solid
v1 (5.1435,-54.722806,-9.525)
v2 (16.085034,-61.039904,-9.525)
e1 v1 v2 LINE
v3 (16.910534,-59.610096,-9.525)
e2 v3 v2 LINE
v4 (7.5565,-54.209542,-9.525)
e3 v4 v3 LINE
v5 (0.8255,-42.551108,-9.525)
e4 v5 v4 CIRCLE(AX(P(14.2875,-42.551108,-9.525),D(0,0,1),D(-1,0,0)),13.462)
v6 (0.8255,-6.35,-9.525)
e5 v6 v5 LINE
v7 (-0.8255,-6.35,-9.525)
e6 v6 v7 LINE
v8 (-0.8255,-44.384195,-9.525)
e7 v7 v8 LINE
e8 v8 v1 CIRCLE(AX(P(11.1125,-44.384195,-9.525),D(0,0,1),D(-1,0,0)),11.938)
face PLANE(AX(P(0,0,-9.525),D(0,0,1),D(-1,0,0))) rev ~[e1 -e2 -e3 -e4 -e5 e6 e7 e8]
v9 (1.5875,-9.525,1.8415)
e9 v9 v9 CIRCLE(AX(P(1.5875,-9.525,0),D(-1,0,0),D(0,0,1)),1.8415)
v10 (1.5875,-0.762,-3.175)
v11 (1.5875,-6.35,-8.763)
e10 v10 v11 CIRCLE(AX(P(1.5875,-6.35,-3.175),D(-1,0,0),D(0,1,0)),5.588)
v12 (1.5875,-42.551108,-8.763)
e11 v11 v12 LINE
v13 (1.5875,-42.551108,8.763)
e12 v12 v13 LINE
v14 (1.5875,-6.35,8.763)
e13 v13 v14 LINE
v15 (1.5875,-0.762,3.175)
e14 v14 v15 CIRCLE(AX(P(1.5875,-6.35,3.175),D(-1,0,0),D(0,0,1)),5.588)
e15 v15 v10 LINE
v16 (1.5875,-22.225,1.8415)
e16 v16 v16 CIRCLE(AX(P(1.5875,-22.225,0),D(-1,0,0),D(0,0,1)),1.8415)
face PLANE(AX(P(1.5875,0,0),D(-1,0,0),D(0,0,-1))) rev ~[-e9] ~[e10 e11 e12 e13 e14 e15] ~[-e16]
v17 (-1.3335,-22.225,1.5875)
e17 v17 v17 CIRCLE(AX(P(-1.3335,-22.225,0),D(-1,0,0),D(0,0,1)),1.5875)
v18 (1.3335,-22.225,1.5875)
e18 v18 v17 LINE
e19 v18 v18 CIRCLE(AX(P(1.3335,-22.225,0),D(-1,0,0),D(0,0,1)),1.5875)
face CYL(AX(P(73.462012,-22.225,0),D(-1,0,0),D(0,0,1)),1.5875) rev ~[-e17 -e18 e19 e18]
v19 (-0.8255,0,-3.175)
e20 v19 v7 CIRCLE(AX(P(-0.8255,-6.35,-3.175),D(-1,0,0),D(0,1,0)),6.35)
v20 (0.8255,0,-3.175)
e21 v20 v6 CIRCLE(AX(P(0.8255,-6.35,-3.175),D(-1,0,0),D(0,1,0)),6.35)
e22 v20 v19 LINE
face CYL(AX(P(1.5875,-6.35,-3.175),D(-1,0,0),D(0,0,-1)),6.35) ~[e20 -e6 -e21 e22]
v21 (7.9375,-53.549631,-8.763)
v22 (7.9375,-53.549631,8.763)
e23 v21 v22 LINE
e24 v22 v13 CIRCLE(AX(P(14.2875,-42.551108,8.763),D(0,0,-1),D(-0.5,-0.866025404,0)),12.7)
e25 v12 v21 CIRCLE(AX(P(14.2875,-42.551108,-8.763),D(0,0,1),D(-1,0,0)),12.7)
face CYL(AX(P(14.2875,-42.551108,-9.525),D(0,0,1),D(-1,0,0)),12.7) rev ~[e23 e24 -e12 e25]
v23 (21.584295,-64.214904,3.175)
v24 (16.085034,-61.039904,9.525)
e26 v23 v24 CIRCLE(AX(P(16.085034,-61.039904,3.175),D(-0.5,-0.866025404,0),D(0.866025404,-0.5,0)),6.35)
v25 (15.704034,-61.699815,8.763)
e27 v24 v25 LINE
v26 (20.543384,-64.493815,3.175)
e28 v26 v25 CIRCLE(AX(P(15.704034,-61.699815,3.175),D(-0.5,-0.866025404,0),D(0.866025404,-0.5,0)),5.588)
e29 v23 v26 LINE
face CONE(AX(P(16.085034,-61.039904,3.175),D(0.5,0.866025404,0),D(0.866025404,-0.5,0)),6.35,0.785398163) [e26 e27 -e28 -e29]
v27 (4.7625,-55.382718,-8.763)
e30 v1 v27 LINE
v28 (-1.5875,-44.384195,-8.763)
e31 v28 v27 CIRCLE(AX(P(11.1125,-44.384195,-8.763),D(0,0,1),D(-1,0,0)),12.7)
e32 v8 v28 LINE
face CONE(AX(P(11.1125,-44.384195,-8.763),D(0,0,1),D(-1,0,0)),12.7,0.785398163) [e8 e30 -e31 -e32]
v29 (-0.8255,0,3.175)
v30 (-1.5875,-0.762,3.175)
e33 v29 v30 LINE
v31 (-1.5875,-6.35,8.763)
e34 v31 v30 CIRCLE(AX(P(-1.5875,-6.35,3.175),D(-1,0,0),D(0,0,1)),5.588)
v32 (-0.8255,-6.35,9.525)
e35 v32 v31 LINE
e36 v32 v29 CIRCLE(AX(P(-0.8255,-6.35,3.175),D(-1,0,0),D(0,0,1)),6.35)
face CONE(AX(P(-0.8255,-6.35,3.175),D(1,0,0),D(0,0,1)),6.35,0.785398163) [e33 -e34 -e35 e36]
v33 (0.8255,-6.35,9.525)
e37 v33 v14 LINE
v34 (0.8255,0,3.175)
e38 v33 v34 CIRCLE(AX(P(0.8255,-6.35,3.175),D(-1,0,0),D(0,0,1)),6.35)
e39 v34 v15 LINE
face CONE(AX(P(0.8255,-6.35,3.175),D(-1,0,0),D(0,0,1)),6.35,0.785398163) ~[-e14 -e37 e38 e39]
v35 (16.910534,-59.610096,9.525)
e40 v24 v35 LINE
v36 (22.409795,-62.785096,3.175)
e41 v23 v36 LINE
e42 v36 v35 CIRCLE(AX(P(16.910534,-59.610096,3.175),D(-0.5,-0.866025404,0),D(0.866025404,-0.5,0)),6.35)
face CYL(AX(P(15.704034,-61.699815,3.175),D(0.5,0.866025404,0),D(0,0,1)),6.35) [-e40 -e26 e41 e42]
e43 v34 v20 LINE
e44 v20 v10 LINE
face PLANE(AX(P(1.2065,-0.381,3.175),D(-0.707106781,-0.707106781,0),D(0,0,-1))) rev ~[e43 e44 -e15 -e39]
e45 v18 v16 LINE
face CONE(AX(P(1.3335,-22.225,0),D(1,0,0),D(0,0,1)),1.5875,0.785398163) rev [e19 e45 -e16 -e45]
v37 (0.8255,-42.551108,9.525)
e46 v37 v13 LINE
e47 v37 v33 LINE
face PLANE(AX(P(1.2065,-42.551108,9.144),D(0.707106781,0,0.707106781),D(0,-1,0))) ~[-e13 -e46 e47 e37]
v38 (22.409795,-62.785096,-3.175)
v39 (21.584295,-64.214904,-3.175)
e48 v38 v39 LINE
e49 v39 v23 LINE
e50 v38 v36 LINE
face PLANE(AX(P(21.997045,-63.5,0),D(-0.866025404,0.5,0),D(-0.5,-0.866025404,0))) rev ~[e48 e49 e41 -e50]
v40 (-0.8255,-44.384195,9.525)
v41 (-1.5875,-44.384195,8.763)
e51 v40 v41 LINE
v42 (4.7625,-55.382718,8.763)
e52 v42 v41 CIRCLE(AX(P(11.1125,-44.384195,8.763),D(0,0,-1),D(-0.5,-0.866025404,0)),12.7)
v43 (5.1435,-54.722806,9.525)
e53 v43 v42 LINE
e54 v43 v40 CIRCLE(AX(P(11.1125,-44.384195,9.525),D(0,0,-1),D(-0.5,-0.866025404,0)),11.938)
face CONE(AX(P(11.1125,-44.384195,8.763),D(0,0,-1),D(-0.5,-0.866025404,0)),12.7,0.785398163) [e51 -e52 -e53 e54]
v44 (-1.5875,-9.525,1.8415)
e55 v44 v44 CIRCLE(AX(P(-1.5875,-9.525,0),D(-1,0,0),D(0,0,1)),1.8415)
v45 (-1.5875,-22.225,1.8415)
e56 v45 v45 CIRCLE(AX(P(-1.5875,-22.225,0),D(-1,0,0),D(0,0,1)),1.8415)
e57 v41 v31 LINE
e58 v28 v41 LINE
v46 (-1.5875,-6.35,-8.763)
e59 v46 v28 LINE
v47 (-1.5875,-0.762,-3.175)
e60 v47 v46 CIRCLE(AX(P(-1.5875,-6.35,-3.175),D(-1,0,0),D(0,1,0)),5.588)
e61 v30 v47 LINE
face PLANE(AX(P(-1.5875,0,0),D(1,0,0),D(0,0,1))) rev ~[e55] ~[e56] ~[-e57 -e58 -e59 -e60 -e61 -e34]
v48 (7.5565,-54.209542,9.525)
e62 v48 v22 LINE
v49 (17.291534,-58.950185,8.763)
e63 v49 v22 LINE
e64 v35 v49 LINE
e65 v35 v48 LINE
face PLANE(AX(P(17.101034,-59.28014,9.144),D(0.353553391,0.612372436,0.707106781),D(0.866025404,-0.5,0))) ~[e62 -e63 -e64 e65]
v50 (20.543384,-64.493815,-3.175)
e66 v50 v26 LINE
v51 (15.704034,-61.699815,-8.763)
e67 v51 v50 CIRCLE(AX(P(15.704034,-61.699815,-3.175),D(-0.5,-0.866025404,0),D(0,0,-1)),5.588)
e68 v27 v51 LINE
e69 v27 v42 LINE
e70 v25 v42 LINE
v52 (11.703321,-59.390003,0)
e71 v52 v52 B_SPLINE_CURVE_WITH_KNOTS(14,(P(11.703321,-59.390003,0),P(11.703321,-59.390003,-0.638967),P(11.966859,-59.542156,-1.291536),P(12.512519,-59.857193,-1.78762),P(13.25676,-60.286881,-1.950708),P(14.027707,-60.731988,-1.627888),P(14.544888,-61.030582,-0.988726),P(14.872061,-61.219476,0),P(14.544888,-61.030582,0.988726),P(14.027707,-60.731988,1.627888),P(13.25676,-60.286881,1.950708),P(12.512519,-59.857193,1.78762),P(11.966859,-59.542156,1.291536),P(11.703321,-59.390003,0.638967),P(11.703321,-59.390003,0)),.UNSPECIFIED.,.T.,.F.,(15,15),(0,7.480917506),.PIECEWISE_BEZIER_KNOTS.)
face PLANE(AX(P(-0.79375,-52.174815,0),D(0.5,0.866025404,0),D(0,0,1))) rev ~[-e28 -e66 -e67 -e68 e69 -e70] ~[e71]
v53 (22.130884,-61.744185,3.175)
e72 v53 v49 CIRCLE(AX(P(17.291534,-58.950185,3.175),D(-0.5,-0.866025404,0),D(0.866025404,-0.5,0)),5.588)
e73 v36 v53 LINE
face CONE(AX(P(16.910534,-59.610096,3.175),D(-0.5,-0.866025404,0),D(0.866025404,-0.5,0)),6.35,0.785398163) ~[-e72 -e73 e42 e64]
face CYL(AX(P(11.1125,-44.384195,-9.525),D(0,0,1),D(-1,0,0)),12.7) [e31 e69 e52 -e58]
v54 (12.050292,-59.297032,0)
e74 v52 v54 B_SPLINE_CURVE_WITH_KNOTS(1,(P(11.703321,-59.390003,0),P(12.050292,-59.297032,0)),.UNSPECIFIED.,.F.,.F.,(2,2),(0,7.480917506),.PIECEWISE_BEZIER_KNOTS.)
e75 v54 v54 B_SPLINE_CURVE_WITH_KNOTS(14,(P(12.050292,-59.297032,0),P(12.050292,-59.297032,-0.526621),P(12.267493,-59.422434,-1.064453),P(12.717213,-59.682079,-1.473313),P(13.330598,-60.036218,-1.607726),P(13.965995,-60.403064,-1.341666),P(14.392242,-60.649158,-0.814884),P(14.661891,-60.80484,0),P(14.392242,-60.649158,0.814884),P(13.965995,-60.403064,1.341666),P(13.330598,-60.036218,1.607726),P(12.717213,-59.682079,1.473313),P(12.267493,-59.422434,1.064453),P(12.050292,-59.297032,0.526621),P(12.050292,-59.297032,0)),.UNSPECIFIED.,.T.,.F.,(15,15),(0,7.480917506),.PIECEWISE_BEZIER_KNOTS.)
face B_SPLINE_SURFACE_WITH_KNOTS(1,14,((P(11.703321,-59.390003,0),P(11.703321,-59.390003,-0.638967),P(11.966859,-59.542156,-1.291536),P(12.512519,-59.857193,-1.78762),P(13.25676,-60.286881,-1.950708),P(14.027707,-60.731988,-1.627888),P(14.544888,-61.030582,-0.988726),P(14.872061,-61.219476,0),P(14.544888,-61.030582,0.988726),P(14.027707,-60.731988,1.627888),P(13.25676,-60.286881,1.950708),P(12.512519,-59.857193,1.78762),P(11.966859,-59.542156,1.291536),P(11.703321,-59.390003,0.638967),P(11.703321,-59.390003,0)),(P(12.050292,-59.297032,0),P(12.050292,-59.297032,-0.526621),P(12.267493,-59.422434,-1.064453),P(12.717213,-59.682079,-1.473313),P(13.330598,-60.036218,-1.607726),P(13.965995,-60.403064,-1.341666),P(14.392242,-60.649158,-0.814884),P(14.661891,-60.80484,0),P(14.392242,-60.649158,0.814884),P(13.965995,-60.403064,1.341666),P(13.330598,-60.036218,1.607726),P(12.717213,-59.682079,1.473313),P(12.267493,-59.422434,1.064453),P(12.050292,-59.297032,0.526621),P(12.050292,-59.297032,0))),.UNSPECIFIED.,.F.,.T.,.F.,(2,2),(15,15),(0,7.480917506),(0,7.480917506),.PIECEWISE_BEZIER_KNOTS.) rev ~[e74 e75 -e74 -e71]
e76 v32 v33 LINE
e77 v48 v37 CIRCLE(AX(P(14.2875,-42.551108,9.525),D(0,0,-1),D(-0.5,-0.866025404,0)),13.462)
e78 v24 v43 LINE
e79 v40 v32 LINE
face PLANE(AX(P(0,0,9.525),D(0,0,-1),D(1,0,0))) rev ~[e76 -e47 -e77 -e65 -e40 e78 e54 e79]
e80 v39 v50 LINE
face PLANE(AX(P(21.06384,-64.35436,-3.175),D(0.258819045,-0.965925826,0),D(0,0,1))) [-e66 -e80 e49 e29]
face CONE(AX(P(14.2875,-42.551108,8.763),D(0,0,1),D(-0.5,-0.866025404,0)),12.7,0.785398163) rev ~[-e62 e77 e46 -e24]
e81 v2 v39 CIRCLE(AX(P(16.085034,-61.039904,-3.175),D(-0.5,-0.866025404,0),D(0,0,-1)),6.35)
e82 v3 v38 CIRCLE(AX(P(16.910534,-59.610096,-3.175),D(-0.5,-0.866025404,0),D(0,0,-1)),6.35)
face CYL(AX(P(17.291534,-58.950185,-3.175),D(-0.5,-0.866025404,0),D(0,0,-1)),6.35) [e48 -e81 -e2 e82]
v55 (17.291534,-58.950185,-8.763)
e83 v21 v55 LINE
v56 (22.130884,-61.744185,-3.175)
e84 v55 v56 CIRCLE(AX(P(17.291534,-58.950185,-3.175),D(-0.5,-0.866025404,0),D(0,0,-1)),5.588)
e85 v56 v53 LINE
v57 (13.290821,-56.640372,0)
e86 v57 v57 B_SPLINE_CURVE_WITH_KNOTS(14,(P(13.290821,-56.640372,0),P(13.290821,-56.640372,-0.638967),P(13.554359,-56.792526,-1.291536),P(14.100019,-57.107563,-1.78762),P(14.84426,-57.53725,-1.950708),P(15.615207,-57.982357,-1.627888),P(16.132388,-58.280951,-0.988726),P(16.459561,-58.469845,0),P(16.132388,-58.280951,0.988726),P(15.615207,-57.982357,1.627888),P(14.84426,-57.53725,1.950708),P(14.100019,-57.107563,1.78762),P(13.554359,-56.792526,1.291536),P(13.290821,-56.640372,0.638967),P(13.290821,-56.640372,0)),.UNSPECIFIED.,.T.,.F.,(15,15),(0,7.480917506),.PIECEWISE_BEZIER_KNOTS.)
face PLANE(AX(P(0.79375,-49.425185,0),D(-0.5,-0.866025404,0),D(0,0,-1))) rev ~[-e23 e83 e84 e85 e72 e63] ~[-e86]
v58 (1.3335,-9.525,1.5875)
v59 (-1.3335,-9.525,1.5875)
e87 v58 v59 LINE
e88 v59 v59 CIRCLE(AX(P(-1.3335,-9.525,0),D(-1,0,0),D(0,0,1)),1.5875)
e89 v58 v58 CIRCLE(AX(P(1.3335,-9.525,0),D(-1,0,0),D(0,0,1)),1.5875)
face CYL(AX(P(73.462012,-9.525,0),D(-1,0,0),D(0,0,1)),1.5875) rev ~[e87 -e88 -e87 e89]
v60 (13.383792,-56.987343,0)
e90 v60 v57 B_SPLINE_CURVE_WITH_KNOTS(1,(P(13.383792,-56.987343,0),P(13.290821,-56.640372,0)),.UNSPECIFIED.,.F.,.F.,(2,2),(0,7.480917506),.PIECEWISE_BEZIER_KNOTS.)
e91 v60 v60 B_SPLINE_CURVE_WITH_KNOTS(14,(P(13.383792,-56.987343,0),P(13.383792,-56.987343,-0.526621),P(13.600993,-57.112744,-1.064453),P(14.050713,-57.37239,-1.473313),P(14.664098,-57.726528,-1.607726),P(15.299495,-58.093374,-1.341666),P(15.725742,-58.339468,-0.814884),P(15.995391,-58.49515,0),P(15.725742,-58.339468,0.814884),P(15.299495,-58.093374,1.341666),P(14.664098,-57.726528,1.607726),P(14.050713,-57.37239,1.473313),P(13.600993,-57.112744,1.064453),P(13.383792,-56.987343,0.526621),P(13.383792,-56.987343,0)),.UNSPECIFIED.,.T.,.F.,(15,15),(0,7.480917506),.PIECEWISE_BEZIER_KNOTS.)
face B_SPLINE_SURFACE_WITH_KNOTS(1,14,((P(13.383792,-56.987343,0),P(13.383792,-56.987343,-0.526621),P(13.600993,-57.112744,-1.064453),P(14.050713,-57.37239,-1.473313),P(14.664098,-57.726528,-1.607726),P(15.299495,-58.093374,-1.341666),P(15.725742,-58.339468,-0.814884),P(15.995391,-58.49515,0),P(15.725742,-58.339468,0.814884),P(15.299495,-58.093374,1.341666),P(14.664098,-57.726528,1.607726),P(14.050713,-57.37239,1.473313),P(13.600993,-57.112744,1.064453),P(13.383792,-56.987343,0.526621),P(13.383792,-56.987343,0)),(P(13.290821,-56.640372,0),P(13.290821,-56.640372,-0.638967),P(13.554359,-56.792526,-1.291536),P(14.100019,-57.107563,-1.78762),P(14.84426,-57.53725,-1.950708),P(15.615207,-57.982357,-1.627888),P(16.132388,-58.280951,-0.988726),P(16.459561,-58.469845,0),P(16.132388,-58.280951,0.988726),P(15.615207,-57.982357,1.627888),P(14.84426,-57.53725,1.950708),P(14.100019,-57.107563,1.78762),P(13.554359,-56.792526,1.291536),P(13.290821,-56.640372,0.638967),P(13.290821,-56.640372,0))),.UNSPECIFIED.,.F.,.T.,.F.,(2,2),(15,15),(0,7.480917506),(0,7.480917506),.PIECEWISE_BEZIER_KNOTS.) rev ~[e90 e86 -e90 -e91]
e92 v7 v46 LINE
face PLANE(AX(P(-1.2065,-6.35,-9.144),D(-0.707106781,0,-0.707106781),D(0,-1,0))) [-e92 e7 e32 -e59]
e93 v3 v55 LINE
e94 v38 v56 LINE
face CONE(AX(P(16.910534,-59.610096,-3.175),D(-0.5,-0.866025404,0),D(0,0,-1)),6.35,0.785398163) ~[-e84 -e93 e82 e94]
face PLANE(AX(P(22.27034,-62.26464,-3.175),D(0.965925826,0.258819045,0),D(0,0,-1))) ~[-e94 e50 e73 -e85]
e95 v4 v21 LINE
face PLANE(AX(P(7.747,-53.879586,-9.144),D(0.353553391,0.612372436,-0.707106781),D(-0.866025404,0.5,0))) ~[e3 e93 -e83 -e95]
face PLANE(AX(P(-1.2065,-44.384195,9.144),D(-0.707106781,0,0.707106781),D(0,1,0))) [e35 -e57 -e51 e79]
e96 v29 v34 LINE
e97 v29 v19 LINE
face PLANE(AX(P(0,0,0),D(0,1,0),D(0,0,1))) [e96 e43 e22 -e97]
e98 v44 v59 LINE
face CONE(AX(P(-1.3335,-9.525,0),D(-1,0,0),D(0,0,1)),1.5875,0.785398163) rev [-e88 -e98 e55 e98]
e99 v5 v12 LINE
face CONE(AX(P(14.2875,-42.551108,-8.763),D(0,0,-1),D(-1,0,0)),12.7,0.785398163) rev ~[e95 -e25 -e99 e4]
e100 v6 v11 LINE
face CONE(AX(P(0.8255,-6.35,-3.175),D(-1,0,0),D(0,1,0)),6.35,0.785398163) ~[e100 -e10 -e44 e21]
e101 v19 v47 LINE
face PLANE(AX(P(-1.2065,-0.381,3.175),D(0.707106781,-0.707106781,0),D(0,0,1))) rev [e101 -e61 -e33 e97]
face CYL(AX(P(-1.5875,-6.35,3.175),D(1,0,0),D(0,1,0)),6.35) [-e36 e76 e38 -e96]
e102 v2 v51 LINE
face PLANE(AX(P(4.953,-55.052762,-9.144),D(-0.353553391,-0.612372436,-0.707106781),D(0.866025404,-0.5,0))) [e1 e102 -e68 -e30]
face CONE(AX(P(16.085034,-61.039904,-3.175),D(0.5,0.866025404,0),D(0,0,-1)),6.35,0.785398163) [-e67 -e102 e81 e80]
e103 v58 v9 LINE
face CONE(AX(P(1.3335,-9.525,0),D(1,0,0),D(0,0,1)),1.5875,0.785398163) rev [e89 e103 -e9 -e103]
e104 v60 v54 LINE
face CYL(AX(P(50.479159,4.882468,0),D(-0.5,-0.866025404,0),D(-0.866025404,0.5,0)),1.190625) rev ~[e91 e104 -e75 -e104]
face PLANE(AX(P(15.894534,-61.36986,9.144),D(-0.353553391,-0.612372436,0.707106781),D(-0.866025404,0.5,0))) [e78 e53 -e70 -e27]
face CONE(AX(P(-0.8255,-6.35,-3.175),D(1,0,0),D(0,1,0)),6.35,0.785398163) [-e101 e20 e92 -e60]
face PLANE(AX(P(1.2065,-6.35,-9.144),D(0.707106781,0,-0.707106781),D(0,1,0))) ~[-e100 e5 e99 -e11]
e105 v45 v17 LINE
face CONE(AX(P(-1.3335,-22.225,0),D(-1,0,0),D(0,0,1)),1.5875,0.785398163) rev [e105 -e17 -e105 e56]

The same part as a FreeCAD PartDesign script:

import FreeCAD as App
import Part
import Sketcher
Q = App.Units.Quantity


def edges_at(feature, points):
    """Names of the edges that pass closest to the given points."""
    edges = feature.Shape.Edges
    near = lambda p: min(range(len(edges)), key=lambda i: edges[i].distToShape(Part.Vertex(*p))[0])
    return sorted({f"Edge{near(p) + 1}" for p in points})

doc = App.newDocument("Part")
body = doc.addObject("PartDesign::Body", "Body")

# Sketch on XZ plane
sketch1 = body.newObject("Sketcher::SketchObject", "Sketch")
sketch1.AttachmentSupport = (doc.getObject("XZ_Plane"), [""])
sketch1.MapMode = "FlatFace"
sketch1.addGeometry(Part.LineSegment(App.Vector(-1.6, -9.5, 0), App.Vector(-1.6, 9.5, 0)), False)
sketch1.addGeometry(Part.LineSegment(App.Vector(-1.6, 9.5, 0), App.Vector(1.6, 9.5, 0)), False)
sketch1.addGeometry(Part.LineSegment(App.Vector(1.6, 9.5, 0), App.Vector(1.6, -9.5, 0)), False)
sketch1.addGeometry(Part.LineSegment(App.Vector(1.6, -9.5, 0), App.Vector(-1.6, -9.5, 0)), False)
sketch1.addConstraint(Sketcher.Constraint("Coincident", 0, 2, 1, 1))
sketch1.addConstraint(Sketcher.Constraint("Coincident", 1, 2, 2, 1))
sketch1.addConstraint(Sketcher.Constraint("Coincident", 2, 2, 3, 1))
sketch1.addConstraint(Sketcher.Constraint("Coincident", 3, 2, 0, 1))
sketch1.addConstraint(Sketcher.Constraint("Vertical", 0))
sketch1.addConstraint(Sketcher.Constraint("Horizontal", 1))
sketch1.addConstraint(Sketcher.Constraint("Vertical", 2))
sketch1.addConstraint(Sketcher.Constraint("Horizontal", 3))
sketch1.addConstraint(Sketcher.Constraint("Symmetric", 0, 2, 2, 2, -1, 1))
sketch1.addConstraint(Sketcher.Constraint("DistanceY", 0, 1, 0, 2, Q("0.75 in")))
sketch1.addConstraint(Sketcher.Constraint("DistanceX", 1, 1, 1, 2, Q("0.125 in")))

# Sketch on XY plane
sketch2 = body.newObject("Sketcher::SketchObject", "Sketch001")
sketch2.AttachmentSupport = (doc.getObject("XY_Plane"), [""])
sketch2.MapMode = "FlatFace"
sketch2.addGeometry(Part.LineSegment(App.Vector(0, 0, 0), App.Vector(0, -51, 0)), False)
sketch2.addGeometry(Part.LineSegment(App.Vector(0, -51, 0), App.Vector(22, -64, 0)), False)
sketch2.addConstraint(Sketcher.Constraint("Coincident", 0, 2, 1, 1))
sketch2.addConstraint(Sketcher.Constraint("Vertical", 0))
sketch2.addConstraint(Sketcher.Constraint("Coincident", 0, 1, -1, 1))
sketch2.addConstraint(Sketcher.Constraint("DistanceY", 0, 2, 0, 1, Q("2 in")))
sketch2.addConstraint(Sketcher.Constraint("Distance", 1, Q("1 in")))
sketch2.addConstraint(Sketcher.Constraint("Angle", 1, Q("-30 deg")))
doc.recompute()

additivepipe = body.newObject("PartDesign::AdditivePipe", "AdditivePipe")
additivepipe.Profile = sketch1
additivepipe.Spine = (sketch2, ["Edge1", "Edge2"])
additivepipe.Transition = "Right corner"

# Sketch on YZ plane
sketch3 = body.newObject("Sketcher::SketchObject", "Sketch002")
sketch3.AttachmentSupport = (doc.getObject("YZ_Plane"), [""])
sketch3.MapMode = "FlatFace"
sketch3.AttachmentOffset = App.Placement(App.Vector(0, 0, 0.0625 * 25.4), App.Rotation())
sketch3.addGeometry(Part.Circle(App.Vector(-9.5, 0, 0), App.Vector(0, 0, 1), 1.6), False)
sketch3.addGeometry(Part.Circle(App.Vector(-22.2, 0, 0), App.Vector(0, 0, 1), 1.6), False)
sketch3.addConstraint(Sketcher.Constraint("Equal", 0, 1))
sketch3.addConstraint(Sketcher.Constraint("PointOnObject", 0, 3, -1))
sketch3.addConstraint(Sketcher.Constraint("PointOnObject", 1, 3, -1))
sketch3.addConstraint(Sketcher.Constraint("Diameter", 0, Q("0.125 in")))
sketch3.addConstraint(Sketcher.Constraint("DistanceX", 1, 3, 0, 3, Q("0.5 in")))
sketch3.addConstraint(Sketcher.Constraint("DistanceX", 0, 3, -1, 1, Q("0.375 in")))
doc.recompute()
hole = body.newObject("PartDesign::Hole", "Hole")
hole.Profile = sketch3
hole.ThreadType = "None"
hole.Diameter = Q("0.125 in")
hole.DepthType = "ThroughAll"

# Sketch on an angled plane
sketch4 = body.newObject("Sketcher::SketchObject", "Sketch003")
sketch4.Placement = App.Placement(App.Vector(-21.203295, -36.725185, 0), App.Rotation(App.Vector(0.866025404, -0.5, 0), App.Vector(0, 0, -1), App.Vector(0.5, 0.866025404, 0), "ZXY"))
sketch4.addGeometry(Part.Circle(App.Vector(41.3, 0, 0), App.Vector(0, 0, 1), 1.2), False)
sketch4.addConstraint(Sketcher.Constraint("PointOnObject", 0, 3, -1))
sketch4.addConstraint(Sketcher.Constraint("Diameter", 0, Q("0.09375 in")))
sketch4.addConstraint(Sketcher.Constraint("DistanceX", -1, 1, 0, 3, Q("1.625 in")))
doc.recompute()
hole2 = body.newObject("PartDesign::Hole", "Hole001")
hole2.Profile = sketch4
hole2.ThreadType = "None"
hole2.Diameter = Q("0.09375 in")
hole2.DepthType = "ThroughAll"
doc.recompute()

fillet = body.newObject("PartDesign::Fillet", "Fillet")
fillet.Base = (hole2, edges_at(hole2, [(1.587, -49.883, 0), (-1.587, -51.717, 0)]))
fillet.Radius = Q("0.5 in")
doc.recompute()

fillet2 = body.newObject("PartDesign::Fillet", "Fillet001")
fillet2.Base = (fillet, edges_at(fillet, [
    (21.997, -63.5, -9.525),
    (21.997, -63.5, 9.525),
    (0, 0, -9.525),
    (0, 0, 9.525),
]))
fillet2.Radius = Q("0.25 in")
doc.recompute()

chamfer = body.newObject("PartDesign::Chamfer", "Chamfer")
chamfer.Base = (fillet2, edges_at(fillet2, [
    (10.233, -58.541, -9.525),
    (10.233, -58.541, 9.525),
    (12.615, -56.25, -9.525),
    (0.114, -50.734, -9.525),
    (0.114, -50.734, -9.525),
    (0.114, -50.734, 9.525),
    (12.615, -56.25, 9.525),
    (0.114, -50.734, 9.525),
    (3.289, -48.901, 9.525),
    (3.289, -48.901, 9.525),
    (3.289, -48.901, -9.525),
    (3.289, -48.901, -9.525),
    (1.587, -24.451, 9.525),
    (1.587, -24.451, -9.525),
    (-1.587, -25.367, -9.525),
    (-1.587, -25.367, 9.525),
    (21.203, -64.875, 0),
    (19.593, -63.945, 7.665),
    (19.593, -63.945, -7.665),
    (22.791, -62.125, 0),
    (21.18, -61.195, 7.665),
    (21.18, -61.195, -7.665),
    (1.587, 0, 0),
    (-1.587, 0, 0),
    (-1.587, -25.367, 9.525),
    (-1.587, -25.367, -9.525),
    (-1.587, -1.86, 7.665),
    (-1.587, -1.86, -7.665),
    (1.587, -24.451, -9.525),
    (1.587, -24.451, 9.525),
    (1.587, -1.86, 7.665),
    (1.587, -1.86, -7.665),
]))
chamfer.Size = Q("0.03 in")
doc.recompute()

chamfer2 = body.newObject("PartDesign::Chamfer", "Chamfer001")
chamfer2.Base = (chamfer, edges_at(chamfer, [
    (1.587, -22.225, -1.587),
    (-1.587, -22.225, -1.587),
    (1.587, -9.525, -1.587),
    (-1.587, -9.525, -1.587),
    (13.986, -60.708, 0),
    (15.573, -57.958, 0),
]))
chamfer2.Size = Q("0.01 in")

doc.recompute()
